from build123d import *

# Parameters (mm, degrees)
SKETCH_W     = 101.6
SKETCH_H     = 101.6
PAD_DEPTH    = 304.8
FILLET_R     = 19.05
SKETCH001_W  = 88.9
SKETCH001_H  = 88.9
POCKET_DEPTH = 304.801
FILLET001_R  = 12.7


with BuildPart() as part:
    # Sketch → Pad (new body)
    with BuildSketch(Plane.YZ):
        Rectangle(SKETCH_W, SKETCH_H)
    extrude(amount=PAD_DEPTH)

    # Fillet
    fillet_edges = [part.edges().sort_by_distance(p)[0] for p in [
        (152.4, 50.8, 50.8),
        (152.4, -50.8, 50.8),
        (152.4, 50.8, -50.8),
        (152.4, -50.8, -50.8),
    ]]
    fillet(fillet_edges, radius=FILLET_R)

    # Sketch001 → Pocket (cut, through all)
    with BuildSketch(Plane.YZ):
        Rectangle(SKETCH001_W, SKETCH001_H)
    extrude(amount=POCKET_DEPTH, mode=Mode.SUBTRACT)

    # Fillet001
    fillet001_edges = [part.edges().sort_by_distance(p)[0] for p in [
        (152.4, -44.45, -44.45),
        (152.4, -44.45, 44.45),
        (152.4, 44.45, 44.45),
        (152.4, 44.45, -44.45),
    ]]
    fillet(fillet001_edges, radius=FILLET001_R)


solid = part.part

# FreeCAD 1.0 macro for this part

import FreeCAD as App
import Part
import Sketcher
from FreeCAD import Vector
Q = App.Units.Quantity


def edges_at(feature, points):
    """Names of the edges that pass closest to the given points."""
    edges = feature.Shape.Edges
    near = lambda p: min(range(len(edges)), key=lambda i: edges[i].distToShape(Part.Vertex(*p))[0])
    return sorted({f"Edge{near(p) + 1}" for p in points})

doc = App.newDocument("Part")
body = doc.addObject("PartDesign::Body", "Body")

# Sketch on YZ plane
sketch1 = body.newObject("Sketcher::SketchObject", "Sketch")
sketch1.AttachmentSupport = (doc.getObject("YZ_Plane"), [""])
sketch1.MapMode = "FlatFace"
sketch1.addGeometry(Part.LineSegment(Vector(-51, 51, 0), Vector(-51, -51, 0)), False)
sketch1.addGeometry(Part.LineSegment(Vector(-51, -51, 0), Vector(51, -51, 0)), False)
sketch1.addGeometry(Part.LineSegment(Vector(51, -51, 0), Vector(51, 51, 0)), False)
sketch1.addGeometry(Part.LineSegment(Vector(51, 51, 0), Vector(-51, 51, 0)), False)
sketch1.addConstraint(Sketcher.Constraint("Coincident", 0, 2, 1, 1))
sketch1.addConstraint(Sketcher.Constraint("Coincident", 1, 2, 2, 1))
sketch1.addConstraint(Sketcher.Constraint("Coincident", 2, 2, 3, 1))
sketch1.addConstraint(Sketcher.Constraint("Coincident", 3, 2, 0, 1))
sketch1.addConstraint(Sketcher.Constraint("Vertical", 0))
sketch1.addConstraint(Sketcher.Constraint("Horizontal", 1))
sketch1.addConstraint(Sketcher.Constraint("Vertical", 2))
sketch1.addConstraint(Sketcher.Constraint("Horizontal", 3))
sketch1.addConstraint(Sketcher.Constraint("Symmetric", 0, 2, 2, 2, -1, 1))
sketch1.addConstraint(Sketcher.Constraint("Equal", 3, 0))
sketch1.addConstraint(Sketcher.Constraint("DistanceX", 1, 1, 1, 2, Q("4 in")))
pad1 = body.newObject("PartDesign::Pad", "Pad")
pad1.Profile = sketch1
pad1.Length = Q("12 in")
doc.recompute()

fillet = body.newObject("PartDesign::Fillet", "Fillet")
fillet.Base = (pad1, edges_at(pad1, [
    (152.4, 50.8, 50.8),
    (152.4, -50.8, 50.8),
    (152.4, 50.8, -50.8),
    (152.4, -50.8, -50.8),
]))
fillet.Radius = Q("0.75 in")

# Sketch on YZ plane
sketch2 = body.newObject("Sketcher::SketchObject", "Sketch001")
sketch2.AttachmentSupport = (doc.getObject("YZ_Plane"), [""])
sketch2.MapMode = "FlatFace"
sketch2.addGeometry(Part.LineSegment(Vector(-44, 44, 0), Vector(-44, -44, 0)), False)
sketch2.addGeometry(Part.LineSegment(Vector(-44, -44, 0), Vector(44, -44, 0)), False)
sketch2.addGeometry(Part.LineSegment(Vector(44, -44, 0), Vector(44, 44, 0)), False)
sketch2.addGeometry(Part.LineSegment(Vector(44, 44, 0), Vector(-44, 44, 0)), False)
sketch2.addConstraint(Sketcher.Constraint("Coincident", 0, 2, 1, 1))
sketch2.addConstraint(Sketcher.Constraint("Coincident", 1, 2, 2, 1))
sketch2.addConstraint(Sketcher.Constraint("Coincident", 2, 2, 3, 1))
sketch2.addConstraint(Sketcher.Constraint("Coincident", 3, 2, 0, 1))
sketch2.addConstraint(Sketcher.Constraint("Vertical", 0))
sketch2.addConstraint(Sketcher.Constraint("Horizontal", 1))
sketch2.addConstraint(Sketcher.Constraint("Vertical", 2))
sketch2.addConstraint(Sketcher.Constraint("Horizontal", 3))
sketch2.addConstraint(Sketcher.Constraint("Symmetric", 0, 2, 2, 2, -1, 1))
sketch2.addConstraint(Sketcher.Constraint("Equal", 3, 0))
sketch2.addConstraint(Sketcher.Constraint("DistanceX", 1, 1, 1, 2, Q("3.5 in")))
pocket1 = body.newObject("PartDesign::Pocket", "Pocket")
pocket1.Profile = sketch2
pocket1.Type = "ThroughAll"
pocket1.Reversed = True
doc.recompute()

fillet2 = body.newObject("PartDesign::Fillet", "Fillet001")
fillet2.Base = (pocket1, edges_at(pocket1, [
    (152.4, -44.45, -44.45),
    (152.4, -44.45, 44.45),
    (152.4, 44.45, 44.45),
    (152.4, 44.45, -44.45),
]))
fillet2.Radius = Q("0.5 in")

doc.recompute()
